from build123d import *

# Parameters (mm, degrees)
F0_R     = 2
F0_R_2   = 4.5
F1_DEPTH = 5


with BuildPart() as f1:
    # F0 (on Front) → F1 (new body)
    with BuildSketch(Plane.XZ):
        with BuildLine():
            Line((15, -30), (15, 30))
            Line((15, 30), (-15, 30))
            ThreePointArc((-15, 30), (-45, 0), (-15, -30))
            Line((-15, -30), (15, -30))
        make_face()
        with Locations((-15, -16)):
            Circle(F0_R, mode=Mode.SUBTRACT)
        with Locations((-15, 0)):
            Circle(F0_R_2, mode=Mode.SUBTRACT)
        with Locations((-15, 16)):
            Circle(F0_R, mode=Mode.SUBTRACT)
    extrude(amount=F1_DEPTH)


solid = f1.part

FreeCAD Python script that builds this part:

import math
import FreeCAD as App
import Part
import Sketcher
Q = App.Units.Quantity

doc = App.newDocument("Part")
body = doc.addObject("PartDesign::Body", "Body")

# Sketch on XZ plane
sketch1 = body.newObject("Sketcher::SketchObject", "Sketch")
sketch1.AttachmentSupport = (doc.getObject("XZ_Plane"), [""])
sketch1.MapMode = "FlatFace"
sketch1.addGeometry([
    Part.LineSegment(App.Vector(15, -30, 0), App.Vector(15, 30, 0)),  # 0
    Part.LineSegment(App.Vector(15, 30, 0), App.Vector(-15, 30, 0)),  # 1
    Part.ArcOfCircle(Part.Circle(App.Vector(-15, 0, 0), App.Vector(0, 0, 1), 30), math.radians(90), math.radians(270)),  # 2
    Part.LineSegment(App.Vector(-15, -30, 0), App.Vector(15, -30, 0)),  # 3
    Part.Circle(App.Vector(-15, -16, 0), App.Vector(0, 0, 1), 2),  # 4
    Part.Circle(App.Vector(-15, 0, 0), App.Vector(0, 0, 1), 4.5),  # 5
    Part.Circle(App.Vector(-15, 16, 0), App.Vector(0, 0, 1), 2),  # 6
], False)
sketch1.addConstraint([
    Sketcher.Constraint("Coincident", 0, 2, 1, 1),
    Sketcher.Constraint("Tangent", 1, 2, 2, 1),
    Sketcher.Constraint("Tangent", 2, 2, 3, 1),
    Sketcher.Constraint("Coincident", 3, 2, 0, 1),
    Sketcher.Constraint("Vertical", 0),
    Sketcher.Constraint("Horizontal", 1),
    Sketcher.Constraint("Horizontal", 3),
    Sketcher.Constraint("Coincident", 5, 3, 2, 3),
    Sketcher.Constraint("Equal", 4, 6),
    Sketcher.Constraint("Symmetric", 0, 2, 2, 2, -1, 1),
    Sketcher.Constraint("Symmetric", 4, 3, 6, 3, -1),
    Sketcher.Constraint("Vertical", 2, 3, 4, 3),
    Sketcher.Constraint("Diameter", 4, Q("4 mm")),
    Sketcher.Constraint("Diameter", 5, Q("9 mm")),
    Sketcher.Constraint("Radius", 2, Q("30 mm")),
    Sketcher.Constraint("DistanceX", 1, 2, 1, 1, Q("30 mm")),
    Sketcher.Constraint("DistanceY", 4, 3, -1, 1, Q("16 mm")),
])
pad1 = body.newObject("PartDesign::Pad", "Pad")
pad1.Profile = sketch1
pad1.Length = 5

doc.recompute()
